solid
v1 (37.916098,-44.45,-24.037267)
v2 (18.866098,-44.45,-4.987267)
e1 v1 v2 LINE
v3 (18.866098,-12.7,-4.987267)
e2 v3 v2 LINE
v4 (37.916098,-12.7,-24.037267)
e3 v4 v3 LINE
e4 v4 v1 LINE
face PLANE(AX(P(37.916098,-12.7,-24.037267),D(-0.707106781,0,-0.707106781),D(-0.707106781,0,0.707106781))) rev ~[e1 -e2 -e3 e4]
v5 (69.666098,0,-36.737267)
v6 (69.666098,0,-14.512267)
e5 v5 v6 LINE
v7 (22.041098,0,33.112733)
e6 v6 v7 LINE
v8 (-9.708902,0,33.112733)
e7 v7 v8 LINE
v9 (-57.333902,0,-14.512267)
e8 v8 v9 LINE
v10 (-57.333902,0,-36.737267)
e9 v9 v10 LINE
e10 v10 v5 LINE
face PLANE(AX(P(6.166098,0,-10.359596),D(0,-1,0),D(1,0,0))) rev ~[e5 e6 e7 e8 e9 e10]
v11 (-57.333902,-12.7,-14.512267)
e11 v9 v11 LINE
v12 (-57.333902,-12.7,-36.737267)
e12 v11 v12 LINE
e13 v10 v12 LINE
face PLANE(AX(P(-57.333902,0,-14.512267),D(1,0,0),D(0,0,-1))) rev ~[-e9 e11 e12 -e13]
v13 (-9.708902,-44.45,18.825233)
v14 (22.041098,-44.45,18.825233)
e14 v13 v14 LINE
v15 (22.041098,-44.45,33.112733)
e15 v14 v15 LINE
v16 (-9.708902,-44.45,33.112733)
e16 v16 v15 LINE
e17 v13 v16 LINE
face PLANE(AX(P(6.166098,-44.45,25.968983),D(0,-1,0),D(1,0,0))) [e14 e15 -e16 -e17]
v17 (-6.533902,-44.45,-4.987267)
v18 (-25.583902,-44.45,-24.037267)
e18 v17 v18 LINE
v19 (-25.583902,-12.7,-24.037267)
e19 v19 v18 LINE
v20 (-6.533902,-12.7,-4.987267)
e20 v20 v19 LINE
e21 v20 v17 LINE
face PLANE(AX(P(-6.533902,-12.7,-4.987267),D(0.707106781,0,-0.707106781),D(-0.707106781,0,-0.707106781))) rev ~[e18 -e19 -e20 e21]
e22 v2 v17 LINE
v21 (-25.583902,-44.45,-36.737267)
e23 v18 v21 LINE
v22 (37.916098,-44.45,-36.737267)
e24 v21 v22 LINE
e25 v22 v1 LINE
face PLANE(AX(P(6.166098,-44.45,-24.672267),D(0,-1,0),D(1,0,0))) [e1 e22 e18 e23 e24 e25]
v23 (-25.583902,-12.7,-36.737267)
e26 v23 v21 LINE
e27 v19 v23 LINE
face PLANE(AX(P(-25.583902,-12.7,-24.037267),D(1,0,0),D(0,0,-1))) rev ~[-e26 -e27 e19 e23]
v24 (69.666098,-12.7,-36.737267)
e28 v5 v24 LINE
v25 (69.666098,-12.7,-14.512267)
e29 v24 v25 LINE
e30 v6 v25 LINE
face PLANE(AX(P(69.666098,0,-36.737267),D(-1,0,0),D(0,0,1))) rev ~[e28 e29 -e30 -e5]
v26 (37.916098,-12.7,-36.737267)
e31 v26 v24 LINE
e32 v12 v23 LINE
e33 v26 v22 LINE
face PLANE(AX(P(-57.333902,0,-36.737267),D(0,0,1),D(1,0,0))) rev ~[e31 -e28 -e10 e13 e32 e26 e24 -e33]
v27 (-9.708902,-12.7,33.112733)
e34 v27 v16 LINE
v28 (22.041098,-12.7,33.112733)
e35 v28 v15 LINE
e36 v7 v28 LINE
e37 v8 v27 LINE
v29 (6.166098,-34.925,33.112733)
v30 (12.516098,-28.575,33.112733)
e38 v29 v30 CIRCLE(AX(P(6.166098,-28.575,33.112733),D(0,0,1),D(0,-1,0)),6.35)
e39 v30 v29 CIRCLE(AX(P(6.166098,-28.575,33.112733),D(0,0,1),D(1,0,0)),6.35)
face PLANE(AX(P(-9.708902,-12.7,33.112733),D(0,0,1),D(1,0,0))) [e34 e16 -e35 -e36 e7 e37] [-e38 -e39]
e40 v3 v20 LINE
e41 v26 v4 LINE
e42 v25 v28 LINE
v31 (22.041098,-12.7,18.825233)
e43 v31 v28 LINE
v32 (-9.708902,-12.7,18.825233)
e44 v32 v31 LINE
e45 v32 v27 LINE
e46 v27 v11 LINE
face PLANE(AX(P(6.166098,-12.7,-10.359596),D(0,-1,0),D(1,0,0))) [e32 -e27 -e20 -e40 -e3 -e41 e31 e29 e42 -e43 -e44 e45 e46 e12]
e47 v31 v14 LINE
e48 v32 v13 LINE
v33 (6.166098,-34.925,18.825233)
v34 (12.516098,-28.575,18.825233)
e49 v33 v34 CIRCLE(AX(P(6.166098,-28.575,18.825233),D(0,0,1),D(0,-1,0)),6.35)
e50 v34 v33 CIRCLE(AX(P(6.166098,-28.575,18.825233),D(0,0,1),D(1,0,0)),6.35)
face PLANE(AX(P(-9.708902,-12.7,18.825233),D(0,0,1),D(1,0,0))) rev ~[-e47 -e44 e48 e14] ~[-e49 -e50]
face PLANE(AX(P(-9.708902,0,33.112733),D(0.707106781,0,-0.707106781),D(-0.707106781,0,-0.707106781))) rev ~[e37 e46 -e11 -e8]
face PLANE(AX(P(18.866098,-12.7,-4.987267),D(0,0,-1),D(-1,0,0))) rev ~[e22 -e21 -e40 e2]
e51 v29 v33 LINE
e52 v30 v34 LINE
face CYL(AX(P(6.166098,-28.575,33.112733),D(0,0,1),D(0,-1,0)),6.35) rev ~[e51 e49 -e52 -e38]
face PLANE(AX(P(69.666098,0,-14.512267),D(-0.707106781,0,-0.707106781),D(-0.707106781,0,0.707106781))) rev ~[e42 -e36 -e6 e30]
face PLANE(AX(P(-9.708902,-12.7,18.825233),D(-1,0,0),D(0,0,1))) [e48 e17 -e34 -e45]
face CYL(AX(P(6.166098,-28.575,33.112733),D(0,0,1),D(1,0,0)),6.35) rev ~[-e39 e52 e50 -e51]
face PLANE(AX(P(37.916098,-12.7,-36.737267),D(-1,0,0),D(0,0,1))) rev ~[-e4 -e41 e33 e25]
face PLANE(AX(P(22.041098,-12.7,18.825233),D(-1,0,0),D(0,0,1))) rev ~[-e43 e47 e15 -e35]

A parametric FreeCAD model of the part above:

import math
import FreeCAD as App
import Part
import Sketcher
from FreeCAD import Vector
Q = App.Units.Quantity

doc = App.newDocument("Part")
body = doc.addObject("PartDesign::Body", "Body")

# Sketch on XZ plane
sketch1 = doc.addObject("Sketcher::SketchObject", "Sketch")
body.addObject(sketch1)
sketch1.AttachmentSupport = (doc.XZ_Plane, [""])
sketch1.MapMode = "FlatFace"
sketch1.addGeometry(Part.LineSegment(Vector(-57.333902, -14.512267, 0), Vector(-57.333902, -36.737267, 0)), False)
sketch1.addGeometry(Part.LineSegment(Vector(-57.333902, -36.737267, 0), Vector(69.666098, -36.737267, 0)), False)
sketch1.addGeometry(Part.LineSegment(Vector(69.666098, -36.737267, 0), Vector(69.666098, -14.512267, 0)), False)
sketch1.addGeometry(Part.LineSegment(Vector(69.666098, -14.512267, 0), Vector(22.041098, 33.112733, 0)), False)
sketch1.addGeometry(Part.LineSegment(Vector(22.041098, 33.112733, 0), Vector(-9.708902, 33.112733, 0)), False)
sketch1.addGeometry(Part.LineSegment(Vector(-9.708902, 33.112733, 0), Vector(-57.333902, -14.512267, 0)), False)
sketch1.addConstraint(Sketcher.Constraint("Coincident", 0, 2, 1, 1))
sketch1.addConstraint(Sketcher.Constraint("Coincident", 1, 2, 2, 1))
sketch1.addConstraint(Sketcher.Constraint("Coincident", 2, 2, 3, 1))
sketch1.addConstraint(Sketcher.Constraint("Coincident", 3, 2, 4, 1))
sketch1.addConstraint(Sketcher.Constraint("Coincident", 4, 2, 5, 1))
sketch1.addConstraint(Sketcher.Constraint("Coincident", 5, 2, 0, 1))
sketch1.addConstraint(Sketcher.Constraint("Vertical", 0))
sketch1.addConstraint(Sketcher.Constraint("Horizontal", 1))
sketch1.addConstraint(Sketcher.Constraint("Vertical", 2))
sketch1.addConstraint(Sketcher.Constraint("Horizontal", 4))
sketch1.addConstraint(Sketcher.Constraint("Perpendicular", 3, 5))
sketch1.addConstraint(Sketcher.Constraint("Horizontal", 2, 2, 5, 2))
sketch1.addConstraint(Sketcher.Constraint("Equal", 3, 5))
sketch1.addConstraint(Sketcher.Constraint("DistanceX", 1, 1, 1, 2, Q("5 in")))
sketch1.addConstraint(Sketcher.Constraint("DistanceX", 4, 2, 4, 1, Q("1.25 in")))
sketch1.addConstraint(Sketcher.Constraint("DistanceY", 0, 2, 0, 1, Q("0.875 in")))
sketch1.addConstraint(Sketcher.Constraint("DistanceX", 0, 2, -1, 1, 57.333902))
sketch1.addConstraint(Sketcher.Constraint("DistanceY", 0, 2, -1, 1, 36.737267))
pad1 = doc.addObject("PartDesign::Pad", "Pad")
body.addObject(pad1)
pad1.Profile = sketch1
pad1.Length = Q("0.5 in")

# Sketch on XZ plane
sketch2 = doc.addObject("Sketcher::SketchObject", "Sketch001")
body.addObject(sketch2)
sketch2.AttachmentSupport = (doc.XZ_Plane, [""])
sketch2.MapMode = "FlatFace"
sketch2.AttachmentOffset = App.Placement(Vector(0, 0, 0.5 * 25.4), App.Rotation())
sketch2.addGeometry(Part.LineSegment(Vector(-25.583902, -36.737267, 0), Vector(37.916098, -36.737267, 0)), False)
sketch2.addGeometry(Part.LineSegment(Vector(37.916098, -36.737267, 0), Vector(37.916098, -24.037267, 0)), False)
sketch2.addGeometry(Part.LineSegment(Vector(37.916098, -24.037267, 0), Vector(18.866098, -4.987267, 0)), False)
sketch2.addGeometry(Part.LineSegment(Vector(18.866098, -4.987267, 0), Vector(-6.533902, -4.987267, 0)), False)
sketch2.addGeometry(Part.LineSegment(Vector(-6.533902, -4.987267, 0), Vector(-25.583902, -24.037267, 0)), False)
sketch2.addGeometry(Part.LineSegment(Vector(-25.583902, -24.037267, 0), Vector(-25.583902, -36.737267, 0)), False)
sketch2.addConstraint(Sketcher.Constraint("Coincident", 0, 2, 1, 1))
sketch2.addConstraint(Sketcher.Constraint("Coincident", 1, 2, 2, 1))
sketch2.addConstraint(Sketcher.Constraint("Coincident", 2, 2, 3, 1))
sketch2.addConstraint(Sketcher.Constraint("Coincident", 3, 2, 4, 1))
sketch2.addConstraint(Sketcher.Constraint("Coincident", 4, 2, 5, 1))
sketch2.addConstraint(Sketcher.Constraint("Coincident", 5, 2, 0, 1))
sketch2.addConstraint(Sketcher.Constraint("Horizontal", 0))
sketch2.addConstraint(Sketcher.Constraint("Vertical", 1))
sketch2.addConstraint(Sketcher.Constraint("Horizontal", 3))
sketch2.addConstraint(Sketcher.Constraint("Vertical", 5))
sketch2.addConstraint(Sketcher.Constraint("Perpendicular", 2, 4))
sketch2.addConstraint(Sketcher.Constraint("Horizontal", 1, 2, 4, 2))
sketch2.addConstraint(Sketcher.Constraint("Equal", 2, 4))
sketch2.addConstraint(Sketcher.Constraint("DistanceX", 3, 2, 3, 1, Q("1 in")))
sketch2.addConstraint(Sketcher.Constraint("DistanceX", 0, 1, 0, 2, Q("2.5 in")))
sketch2.addConstraint(Sketcher.Constraint("DistanceY", 1, 1, 1, 2, Q("0.5 in")))
sketch2.addConstraint(Sketcher.Constraint("DistanceX", -1, 1, 0, 2, 37.916098))
sketch2.addConstraint(Sketcher.Constraint("DistanceY", 0, 2, -1, 1, 36.737267))
pad2 = doc.addObject("PartDesign::Pad", "Pad001")
body.addObject(pad2)
pad2.Profile = sketch2
pad2.Length = Q("1.25 in")

# Sketch on XZ plane
sketch3 = doc.addObject("Sketcher::SketchObject", "Sketch002")
body.addObject(sketch3)
sketch3.AttachmentSupport = (doc.XZ_Plane, [""])
sketch3.MapMode = "FlatFace"
sketch3.AttachmentOffset = App.Placement(Vector(0, 0, 0.5 * 25.4), App.Rotation())
sketch3.addGeometry(Part.LineSegment(Vector(-9.708902, 33.112733, 0), Vector(-9.708902, 18.825233, 0)), False)
sketch3.addGeometry(Part.LineSegment(Vector(-9.708902, 18.825233, 0), Vector(22.041098, 18.825233, 0)), False)
sketch3.addGeometry(Part.LineSegment(Vector(22.041098, 18.825233, 0), Vector(22.041098, 33.112733, 0)), False)
sketch3.addGeometry(Part.LineSegment(Vector(22.041098, 33.112733, 0), Vector(-9.708902, 33.112733, 0)), False)
sketch3.addConstraint(Sketcher.Constraint("Coincident", 0, 2, 1, 1))
sketch3.addConstraint(Sketcher.Constraint("Coincident", 1, 2, 2, 1))
sketch3.addConstraint(Sketcher.Constraint("Coincident", 2, 2, 3, 1))
sketch3.addConstraint(Sketcher.Constraint("Coincident", 3, 2, 0, 1))
sketch3.addConstraint(Sketcher.Constraint("Vertical", 0))
sketch3.addConstraint(Sketcher.Constraint("Horizontal", 1))
sketch3.addConstraint(Sketcher.Constraint("Vertical", 2))
sketch3.addConstraint(Sketcher.Constraint("Horizontal", 3))
sketch3.addConstraint(Sketcher.Constraint("DistanceX", 1, 1, 1, 2, Q("1.25 in")))
sketch3.addConstraint(Sketcher.Constraint("DistanceY", 0, 2, 0, 1, Q("0.5625 in")))
sketch3.addConstraint(Sketcher.Constraint("DistanceX", 0, 2, -1, 1, 9.708902))
sketch3.addConstraint(Sketcher.Constraint("DistanceY", -1, 1, 0, 2, 18.825233))
pad3 = doc.addObject("PartDesign::Pad", "Pad002")
body.addObject(pad3)
pad3.Profile = sketch3
pad3.Length = Q("1.25 in")

# Sketch on XY plane
sketch4 = doc.addObject("Sketcher::SketchObject", "Sketch003")
body.addObject(sketch4)
sketch4.AttachmentSupport = (doc.XY_Plane, [""])
sketch4.MapMode = "FlatFace"
sketch4.AttachmentOffset = App.Placement(Vector(0, 0, 33.112733), App.Rotation())
sketch4.addGeometry(Part.ArcOfCircle(Part.Circle(Vector(6.166098, -28.575, 0), Vector(0, 0, 1), 6.35), math.radians(-90), math.radians(0)), False)
sketch4.addGeometry(Part.ArcOfCircle(Part.Circle(Vector(6.166098, -28.575, 0), Vector(0, 0, 1), 6.35), math.radians(0), math.radians(270)), False)
sketch4.addConstraint(Sketcher.Constraint("Tangent", 0, 1, 1, 2))
sketch4.addConstraint(Sketcher.Constraint("Coincident", 1, 1, 0, 2))
sketch4.addConstraint(Sketcher.Constraint("Horizontal", 0, 3, 1, 1))
sketch4.addConstraint(Sketcher.Constraint("Vertical", 1, 3, 0, 1))
sketch4.addConstraint(Sketcher.Constraint("Radius", 0, Q("0.25 in")))
sketch4.addConstraint(Sketcher.Constraint("DistanceY", 0, 3, -1, 1, Q("1.125 in")))
sketch4.addConstraint(Sketcher.Constraint("DistanceX", -1, 1, 0, 3, 6.166098))
pocket1 = doc.addObject("PartDesign::Pocket", "Pocket")
body.addObject(pocket1)
pocket1.Profile = sketch4
pocket1.Length = Q("1 in")

doc.recompute()
